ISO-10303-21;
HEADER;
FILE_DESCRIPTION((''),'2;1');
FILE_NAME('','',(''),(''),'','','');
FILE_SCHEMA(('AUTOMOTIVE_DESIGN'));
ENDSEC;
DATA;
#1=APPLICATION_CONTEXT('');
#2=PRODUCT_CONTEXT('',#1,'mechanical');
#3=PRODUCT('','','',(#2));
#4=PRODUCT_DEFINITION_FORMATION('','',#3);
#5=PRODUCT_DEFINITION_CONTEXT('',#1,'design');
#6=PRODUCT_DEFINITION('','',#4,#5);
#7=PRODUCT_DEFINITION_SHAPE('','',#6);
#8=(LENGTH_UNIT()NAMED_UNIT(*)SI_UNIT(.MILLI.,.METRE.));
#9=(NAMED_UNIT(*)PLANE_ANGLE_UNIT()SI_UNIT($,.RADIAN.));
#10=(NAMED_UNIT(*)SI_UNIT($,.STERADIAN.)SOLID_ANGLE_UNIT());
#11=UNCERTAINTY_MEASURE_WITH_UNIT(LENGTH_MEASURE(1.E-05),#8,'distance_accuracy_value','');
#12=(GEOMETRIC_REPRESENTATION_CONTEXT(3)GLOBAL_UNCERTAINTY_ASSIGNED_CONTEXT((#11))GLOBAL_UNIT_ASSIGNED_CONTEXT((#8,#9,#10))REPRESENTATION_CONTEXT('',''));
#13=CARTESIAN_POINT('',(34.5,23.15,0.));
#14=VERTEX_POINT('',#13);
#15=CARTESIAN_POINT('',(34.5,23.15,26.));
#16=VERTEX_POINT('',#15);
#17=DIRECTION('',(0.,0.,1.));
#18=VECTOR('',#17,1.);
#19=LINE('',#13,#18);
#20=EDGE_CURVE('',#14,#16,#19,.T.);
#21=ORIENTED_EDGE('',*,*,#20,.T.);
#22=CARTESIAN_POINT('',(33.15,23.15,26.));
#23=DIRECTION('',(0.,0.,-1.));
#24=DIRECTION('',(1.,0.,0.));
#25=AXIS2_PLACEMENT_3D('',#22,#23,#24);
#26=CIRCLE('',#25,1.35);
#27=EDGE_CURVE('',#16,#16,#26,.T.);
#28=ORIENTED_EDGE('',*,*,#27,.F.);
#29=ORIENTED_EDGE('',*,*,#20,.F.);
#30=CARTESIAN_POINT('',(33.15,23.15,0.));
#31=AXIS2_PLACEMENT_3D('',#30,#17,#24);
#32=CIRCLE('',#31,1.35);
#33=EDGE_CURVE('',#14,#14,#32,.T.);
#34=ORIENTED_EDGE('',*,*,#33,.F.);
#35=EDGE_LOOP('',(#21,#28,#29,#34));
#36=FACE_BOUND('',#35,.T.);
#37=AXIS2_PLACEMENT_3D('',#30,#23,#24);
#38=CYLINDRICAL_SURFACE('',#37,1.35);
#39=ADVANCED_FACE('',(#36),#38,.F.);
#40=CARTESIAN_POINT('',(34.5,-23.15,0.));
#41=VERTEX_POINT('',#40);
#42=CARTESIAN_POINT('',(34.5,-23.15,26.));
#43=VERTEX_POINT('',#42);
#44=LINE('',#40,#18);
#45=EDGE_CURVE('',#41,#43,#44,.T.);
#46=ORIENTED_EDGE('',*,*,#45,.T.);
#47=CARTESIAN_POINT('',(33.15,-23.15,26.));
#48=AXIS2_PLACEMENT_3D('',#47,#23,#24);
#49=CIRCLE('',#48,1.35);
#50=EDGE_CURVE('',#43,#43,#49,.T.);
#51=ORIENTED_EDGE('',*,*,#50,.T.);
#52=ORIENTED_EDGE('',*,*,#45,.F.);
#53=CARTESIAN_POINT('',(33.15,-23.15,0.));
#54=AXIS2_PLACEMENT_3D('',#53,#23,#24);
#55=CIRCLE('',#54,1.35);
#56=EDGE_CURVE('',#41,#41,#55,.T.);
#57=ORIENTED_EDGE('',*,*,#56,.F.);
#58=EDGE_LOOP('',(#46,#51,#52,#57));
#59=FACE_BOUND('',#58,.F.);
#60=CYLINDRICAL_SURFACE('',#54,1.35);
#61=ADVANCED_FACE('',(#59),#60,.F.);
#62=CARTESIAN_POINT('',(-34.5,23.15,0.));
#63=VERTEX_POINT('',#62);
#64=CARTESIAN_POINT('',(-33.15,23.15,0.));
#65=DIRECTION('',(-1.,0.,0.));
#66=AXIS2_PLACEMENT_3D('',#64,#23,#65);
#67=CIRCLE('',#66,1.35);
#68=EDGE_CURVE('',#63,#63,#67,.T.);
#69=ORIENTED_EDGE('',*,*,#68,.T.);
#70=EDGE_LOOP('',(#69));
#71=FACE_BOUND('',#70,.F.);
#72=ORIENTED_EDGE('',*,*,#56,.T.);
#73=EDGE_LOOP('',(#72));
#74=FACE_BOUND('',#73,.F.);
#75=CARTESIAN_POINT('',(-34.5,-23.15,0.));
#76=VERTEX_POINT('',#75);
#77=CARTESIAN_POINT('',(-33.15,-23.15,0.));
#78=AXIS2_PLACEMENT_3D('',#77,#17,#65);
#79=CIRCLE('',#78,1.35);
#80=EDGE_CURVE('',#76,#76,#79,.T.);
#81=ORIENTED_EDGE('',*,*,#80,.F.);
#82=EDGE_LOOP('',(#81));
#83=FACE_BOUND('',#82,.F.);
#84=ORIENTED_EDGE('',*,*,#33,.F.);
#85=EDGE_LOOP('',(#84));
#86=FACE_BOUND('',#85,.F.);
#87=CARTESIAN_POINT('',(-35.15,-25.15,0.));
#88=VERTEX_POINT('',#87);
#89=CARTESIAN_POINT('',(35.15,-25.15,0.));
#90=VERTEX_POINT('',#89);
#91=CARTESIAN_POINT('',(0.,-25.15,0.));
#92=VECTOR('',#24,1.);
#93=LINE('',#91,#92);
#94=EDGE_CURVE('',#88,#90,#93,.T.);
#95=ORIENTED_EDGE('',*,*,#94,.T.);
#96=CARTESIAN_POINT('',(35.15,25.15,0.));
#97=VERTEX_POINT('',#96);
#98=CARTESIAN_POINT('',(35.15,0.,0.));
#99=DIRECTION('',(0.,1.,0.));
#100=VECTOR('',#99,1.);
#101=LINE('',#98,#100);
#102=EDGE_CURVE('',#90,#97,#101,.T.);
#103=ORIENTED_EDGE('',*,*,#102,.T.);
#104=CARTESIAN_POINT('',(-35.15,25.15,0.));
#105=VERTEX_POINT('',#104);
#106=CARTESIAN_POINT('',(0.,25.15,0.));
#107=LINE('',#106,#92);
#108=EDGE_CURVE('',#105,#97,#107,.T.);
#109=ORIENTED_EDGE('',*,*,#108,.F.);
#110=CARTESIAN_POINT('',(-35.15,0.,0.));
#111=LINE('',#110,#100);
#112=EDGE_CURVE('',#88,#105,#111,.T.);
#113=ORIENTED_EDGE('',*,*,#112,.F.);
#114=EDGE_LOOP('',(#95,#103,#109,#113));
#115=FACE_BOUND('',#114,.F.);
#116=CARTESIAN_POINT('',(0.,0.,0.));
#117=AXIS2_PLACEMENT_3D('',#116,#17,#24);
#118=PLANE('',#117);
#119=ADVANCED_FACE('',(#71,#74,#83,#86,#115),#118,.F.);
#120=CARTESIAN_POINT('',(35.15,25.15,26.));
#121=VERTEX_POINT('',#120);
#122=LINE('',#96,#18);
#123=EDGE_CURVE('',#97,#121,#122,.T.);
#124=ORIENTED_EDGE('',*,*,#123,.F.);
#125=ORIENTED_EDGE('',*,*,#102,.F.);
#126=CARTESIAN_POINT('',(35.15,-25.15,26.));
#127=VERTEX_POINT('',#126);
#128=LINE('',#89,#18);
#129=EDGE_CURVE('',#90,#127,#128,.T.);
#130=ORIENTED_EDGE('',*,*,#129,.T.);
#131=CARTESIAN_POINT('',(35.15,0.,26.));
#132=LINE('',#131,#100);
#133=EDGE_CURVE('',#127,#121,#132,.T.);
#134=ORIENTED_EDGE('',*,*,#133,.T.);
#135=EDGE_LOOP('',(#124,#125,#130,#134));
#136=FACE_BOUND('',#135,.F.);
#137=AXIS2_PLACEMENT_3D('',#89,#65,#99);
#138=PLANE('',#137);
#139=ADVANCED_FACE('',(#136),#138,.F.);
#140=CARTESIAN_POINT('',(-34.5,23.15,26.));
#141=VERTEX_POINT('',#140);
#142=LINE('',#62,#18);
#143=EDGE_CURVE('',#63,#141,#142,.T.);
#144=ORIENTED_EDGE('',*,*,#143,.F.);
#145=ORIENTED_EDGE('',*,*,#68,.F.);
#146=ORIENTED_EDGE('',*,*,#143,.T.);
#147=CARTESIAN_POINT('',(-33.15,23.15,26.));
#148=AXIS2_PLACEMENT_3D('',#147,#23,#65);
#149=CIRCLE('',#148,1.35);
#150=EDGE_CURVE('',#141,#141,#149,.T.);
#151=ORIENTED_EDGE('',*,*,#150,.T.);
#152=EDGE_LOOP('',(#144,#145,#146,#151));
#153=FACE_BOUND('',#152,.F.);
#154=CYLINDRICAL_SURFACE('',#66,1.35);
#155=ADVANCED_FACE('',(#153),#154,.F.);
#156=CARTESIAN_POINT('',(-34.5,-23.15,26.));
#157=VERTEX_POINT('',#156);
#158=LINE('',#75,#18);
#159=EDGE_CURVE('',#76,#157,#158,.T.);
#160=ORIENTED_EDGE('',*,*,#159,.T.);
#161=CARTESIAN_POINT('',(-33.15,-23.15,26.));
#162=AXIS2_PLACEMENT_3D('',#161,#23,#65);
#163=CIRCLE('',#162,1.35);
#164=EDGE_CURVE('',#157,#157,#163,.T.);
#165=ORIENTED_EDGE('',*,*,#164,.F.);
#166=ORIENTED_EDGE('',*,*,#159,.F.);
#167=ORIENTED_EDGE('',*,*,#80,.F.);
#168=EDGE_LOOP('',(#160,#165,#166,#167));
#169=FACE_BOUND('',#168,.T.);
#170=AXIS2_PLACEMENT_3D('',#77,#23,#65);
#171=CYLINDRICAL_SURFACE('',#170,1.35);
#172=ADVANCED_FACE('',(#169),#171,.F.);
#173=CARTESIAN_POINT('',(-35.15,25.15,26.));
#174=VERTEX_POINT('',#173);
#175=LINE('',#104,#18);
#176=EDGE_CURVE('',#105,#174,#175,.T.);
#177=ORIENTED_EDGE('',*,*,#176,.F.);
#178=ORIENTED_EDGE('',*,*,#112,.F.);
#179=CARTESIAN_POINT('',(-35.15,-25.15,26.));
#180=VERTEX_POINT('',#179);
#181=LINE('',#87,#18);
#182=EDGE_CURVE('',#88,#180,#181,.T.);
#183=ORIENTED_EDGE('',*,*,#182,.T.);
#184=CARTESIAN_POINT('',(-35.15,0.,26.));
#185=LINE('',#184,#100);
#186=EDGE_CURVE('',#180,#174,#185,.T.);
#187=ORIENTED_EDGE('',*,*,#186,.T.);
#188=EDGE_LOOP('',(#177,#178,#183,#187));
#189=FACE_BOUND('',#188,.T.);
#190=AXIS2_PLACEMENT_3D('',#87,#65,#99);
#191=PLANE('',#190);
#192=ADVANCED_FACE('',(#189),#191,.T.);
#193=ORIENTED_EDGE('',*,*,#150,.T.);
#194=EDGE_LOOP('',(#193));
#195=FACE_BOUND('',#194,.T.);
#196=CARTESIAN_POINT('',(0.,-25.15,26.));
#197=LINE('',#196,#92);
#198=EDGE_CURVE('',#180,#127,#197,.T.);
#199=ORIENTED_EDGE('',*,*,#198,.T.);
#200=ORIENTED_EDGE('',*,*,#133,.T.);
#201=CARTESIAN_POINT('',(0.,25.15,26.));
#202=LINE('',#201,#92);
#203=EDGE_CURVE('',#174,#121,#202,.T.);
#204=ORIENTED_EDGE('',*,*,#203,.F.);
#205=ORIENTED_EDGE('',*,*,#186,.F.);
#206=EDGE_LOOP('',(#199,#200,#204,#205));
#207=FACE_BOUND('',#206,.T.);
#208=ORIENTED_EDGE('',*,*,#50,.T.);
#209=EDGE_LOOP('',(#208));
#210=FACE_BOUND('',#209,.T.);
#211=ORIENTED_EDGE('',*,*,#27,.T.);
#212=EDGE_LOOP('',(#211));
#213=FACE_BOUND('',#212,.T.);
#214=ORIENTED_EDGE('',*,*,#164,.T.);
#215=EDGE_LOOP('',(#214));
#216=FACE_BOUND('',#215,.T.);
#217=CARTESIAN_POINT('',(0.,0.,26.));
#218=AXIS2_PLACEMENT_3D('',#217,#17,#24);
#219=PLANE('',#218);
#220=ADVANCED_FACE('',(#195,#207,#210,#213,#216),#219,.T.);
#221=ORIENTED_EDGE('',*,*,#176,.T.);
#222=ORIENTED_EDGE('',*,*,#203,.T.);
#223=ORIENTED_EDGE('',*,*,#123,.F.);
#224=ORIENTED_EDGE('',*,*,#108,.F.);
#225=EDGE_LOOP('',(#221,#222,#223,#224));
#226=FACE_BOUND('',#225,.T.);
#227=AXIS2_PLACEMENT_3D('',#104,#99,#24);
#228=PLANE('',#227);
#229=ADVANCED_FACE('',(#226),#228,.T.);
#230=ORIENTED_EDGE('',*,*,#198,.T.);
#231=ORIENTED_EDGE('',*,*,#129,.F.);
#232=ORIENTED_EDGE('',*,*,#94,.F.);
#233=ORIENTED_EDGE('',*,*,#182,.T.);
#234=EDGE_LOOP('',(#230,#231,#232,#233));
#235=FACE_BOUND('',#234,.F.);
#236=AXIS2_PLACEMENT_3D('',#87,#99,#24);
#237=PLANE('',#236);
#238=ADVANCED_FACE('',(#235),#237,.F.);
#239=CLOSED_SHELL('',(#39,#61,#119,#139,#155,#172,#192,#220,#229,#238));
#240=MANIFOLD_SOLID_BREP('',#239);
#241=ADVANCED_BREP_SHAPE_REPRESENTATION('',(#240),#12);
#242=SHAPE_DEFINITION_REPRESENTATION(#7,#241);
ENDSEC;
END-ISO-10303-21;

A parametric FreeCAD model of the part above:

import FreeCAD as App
import Part
import Sketcher
from FreeCAD import Vector
Q = App.Units.Quantity

doc = App.newDocument("Part")
body = doc.addObject("PartDesign::Body", "Body")

# Sketch on XY plane
sketch1 = body.newObject("Sketcher::SketchObject", "Sketch")
sketch1.AttachmentSupport = (doc.getObject("XY_Plane"), [""])
sketch1.MapMode = "FlatFace"
sketch1.addGeometry([
    Part.LineSegment(Vector(-35, 25, 0), Vector(-35, -25, 0)),
    Part.LineSegment(Vector(-35, -25, 0), Vector(35, -25, 0)),
    Part.LineSegment(Vector(35, -25, 0), Vector(35, 25, 0)),
    Part.LineSegment(Vector(35, 25, 0), Vector(-35, 25, 0)),
], False)
sketch1.addConstraint([
    Sketcher.Constraint("Coincident", 0, 2, 1, 1),
    Sketcher.Constraint("Coincident", 1, 2, 2, 1),
    Sketcher.Constraint("Coincident", 2, 2, 3, 1),
    Sketcher.Constraint("Coincident", 3, 2, 0, 1),
    Sketcher.Constraint("Vertical", 0),
    Sketcher.Constraint("Horizontal", 1),
    Sketcher.Constraint("Vertical", 2),
    Sketcher.Constraint("Horizontal", 3),
    Sketcher.Constraint("Symmetric", 0, 2, 2, 2, -1, 1),
    Sketcher.Constraint("DistanceX", 1, 1, 1, 2, Q("70.3 mm")),
    Sketcher.Constraint("DistanceY", 0, 2, 0, 1, Q("50.3 mm")),
])
pad1 = body.newObject("PartDesign::Pad", "Pad")
pad1.Profile = sketch1
pad1.Length = 26

# Sketch on XY plane
sketch2 = body.newObject("Sketcher::SketchObject", "Sketch001")
sketch2.AttachmentSupport = (doc.getObject("XY_Plane"), [""])
sketch2.MapMode = "FlatFace"
sketch2.addGeometry(Part.Circle(Vector(33.1, 23.1, 0), Vector(0, 0, 1), 1.4), False)
sketch2.addConstraint([
    Sketcher.Constraint("Diameter", 0, Q("2.7 mm")),
    Sketcher.Constraint("DistanceX", -1, 1, 0, 3, Q("33.15 mm")),
    Sketcher.Constraint("DistanceY", -1, 1, 0, 3, Q("23.15 mm")),
])
pocket1 = body.newObject("PartDesign::Pocket", "Pocket")
pocket1.Profile = sketch2
pocket1.Type = "ThroughAll"
pocket1.Reversed = True

# Sketch on XY plane
sketch3 = body.newObject("Sketcher::SketchObject", "Sketch002")
sketch3.AttachmentSupport = (doc.getObject("XY_Plane"), [""])
sketch3.MapMode = "FlatFace"
sketch3.addGeometry(Part.Circle(Vector(-33.1, 23.1, 0), Vector(0, 0, 1), 1.4), False)
sketch3.addConstraint([
    Sketcher.Constraint("Diameter", 0, Q("2.7 mm")),
    Sketcher.Constraint("DistanceX", 0, 3, -1, 1, Q("33.15 mm")),
    Sketcher.Constraint("DistanceY", -1, 1, 0, 3, Q("23.15 mm")),
])
pocket2 = body.newObject("PartDesign::Pocket", "Pocket001")
pocket2.Profile = sketch3
pocket2.Type = "ThroughAll"
pocket2.Reversed = True
doc.recompute()

mirrored = body.newObject("PartDesign::Mirrored", "Mirrored")
mirrored.Originals = [pocket1, pocket2]
mirrored.MirrorPlane = (doc.getObject("XZ_Plane"), [""])
body.Tip = mirrored

doc.recompute()
